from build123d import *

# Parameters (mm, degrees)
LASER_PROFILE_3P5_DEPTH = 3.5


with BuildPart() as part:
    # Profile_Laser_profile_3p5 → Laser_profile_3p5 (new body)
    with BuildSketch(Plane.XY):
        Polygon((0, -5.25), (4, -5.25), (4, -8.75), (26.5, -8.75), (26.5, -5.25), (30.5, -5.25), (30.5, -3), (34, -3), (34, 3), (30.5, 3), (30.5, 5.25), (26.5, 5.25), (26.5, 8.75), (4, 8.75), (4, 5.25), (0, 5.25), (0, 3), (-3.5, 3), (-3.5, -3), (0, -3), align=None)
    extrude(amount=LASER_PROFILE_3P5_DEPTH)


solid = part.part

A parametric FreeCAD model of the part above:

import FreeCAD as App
import Part
import Sketcher

doc = App.newDocument("Part")
body = doc.addObject("PartDesign::Body", "Body")

# Sketch on XY plane
sketch1 = doc.addObject("Sketcher::SketchObject", "Sketch")
body.addObject(sketch1)
sketch1.AttachmentSupport = (doc.XY_Plane, [""])
sketch1.MapMode = "FlatFace"
sketch1.addGeometry(Part.LineSegment(App.Vector(0, -5.25, 0), App.Vector(4, -5.25, 0)), False)
sketch1.addGeometry(Part.LineSegment(App.Vector(4, -5.25, 0), App.Vector(4, -8.75, 0)), False)
sketch1.addGeometry(Part.LineSegment(App.Vector(4, -8.75, 0), App.Vector(26.5, -8.75, 0)), False)
sketch1.addGeometry(Part.LineSegment(App.Vector(26.5, -8.75, 0), App.Vector(26.5, -5.25, 0)), False)
sketch1.addGeometry(Part.LineSegment(App.Vector(26.5, -5.25, 0), App.Vector(30.5, -5.25, 0)), False)
sketch1.addGeometry(Part.LineSegment(App.Vector(30.5, -5.25, 0), App.Vector(30.5, -3, 0)), False)
sketch1.addGeometry(Part.LineSegment(App.Vector(30.5, -3, 0), App.Vector(34, -3, 0)), False)
sketch1.addGeometry(Part.LineSegment(App.Vector(34, -3, 0), App.Vector(34, 3, 0)), False)
sketch1.addGeometry(Part.LineSegment(App.Vector(34, 3, 0), App.Vector(30.5, 3, 0)), False)
sketch1.addGeometry(Part.LineSegment(App.Vector(30.5, 3, 0), App.Vector(30.5, 5.25, 0)), False)
sketch1.addGeometry(Part.LineSegment(App.Vector(30.5, 5.25, 0), App.Vector(26.5, 5.25, 0)), False)
sketch1.addGeometry(Part.LineSegment(App.Vector(26.5, 5.25, 0), App.Vector(26.5, 8.75, 0)), False)
sketch1.addGeometry(Part.LineSegment(App.Vector(26.5, 8.75, 0), App.Vector(4, 8.75, 0)), False)
sketch1.addGeometry(Part.LineSegment(App.Vector(4, 8.75, 0), App.Vector(4, 5.25, 0)), False)
sketch1.addGeometry(Part.LineSegment(App.Vector(4, 5.25, 0), App.Vector(0, 5.25, 0)), False)
sketch1.addGeometry(Part.LineSegment(App.Vector(0, 5.25, 0), App.Vector(0, 3, 0)), False)
sketch1.addGeometry(Part.LineSegment(App.Vector(0, 3, 0), App.Vector(-3.5, 3, 0)), False)
sketch1.addGeometry(Part.LineSegment(App.Vector(-3.5, 3, 0), App.Vector(-3.5, -3, 0)), False)
sketch1.addGeometry(Part.LineSegment(App.Vector(-3.5, -3, 0), App.Vector(0, -3, 0)), False)
sketch1.addGeometry(Part.LineSegment(App.Vector(0, -3, 0), App.Vector(0, -5.25, 0)), False)
sketch1.addConstraint(Sketcher.Constraint("Coincident", 0, 2, 1, 1))
sketch1.addConstraint(Sketcher.Constraint("Coincident", 1, 2, 2, 1))
sketch1.addConstraint(Sketcher.Constraint("Coincident", 2, 2, 3, 1))
sketch1.addConstraint(Sketcher.Constraint("Coincident", 3, 2, 4, 1))
sketch1.addConstraint(Sketcher.Constraint("Coincident", 4, 2, 5, 1))
sketch1.addConstraint(Sketcher.Constraint("Coincident", 5, 2, 6, 1))
sketch1.addConstraint(Sketcher.Constraint("Coincident", 6, 2, 7, 1))
sketch1.addConstraint(Sketcher.Constraint("Coincident", 7, 2, 8, 1))
sketch1.addConstraint(Sketcher.Constraint("Coincident", 8, 2, 9, 1))
sketch1.addConstraint(Sketcher.Constraint("Coincident", 9, 2, 10, 1))
sketch1.addConstraint(Sketcher.Constraint("Coincident", 10, 2, 11, 1))
sketch1.addConstraint(Sketcher.Constraint("Coincident", 11, 2, 12, 1))
sketch1.addConstraint(Sketcher.Constraint("Coincident", 12, 2, 13, 1))
sketch1.addConstraint(Sketcher.Constraint("Coincident", 13, 2, 14, 1))
sketch1.addConstraint(Sketcher.Constraint("Coincident", 14, 2, 15, 1))
sketch1.addConstraint(Sketcher.Constraint("Coincident", 15, 2, 16, 1))
sketch1.addConstraint(Sketcher.Constraint("Coincident", 16, 2, 17, 1))
sketch1.addConstraint(Sketcher.Constraint("Coincident", 17, 2, 18, 1))
sketch1.addConstraint(Sketcher.Constraint("Coincident", 18, 2, 19, 1))
sketch1.addConstraint(Sketcher.Constraint("Coincident", 19, 2, 0, 1))
sketch1.addConstraint(Sketcher.Constraint("Horizontal", 0))
sketch1.addConstraint(Sketcher.Constraint("Vertical", 1))
sketch1.addConstraint(Sketcher.Constraint("Horizontal", 2))
sketch1.addConstraint(Sketcher.Constraint("Vertical", 3))
sketch1.addConstraint(Sketcher.Constraint("Horizontal", 4))
sketch1.addConstraint(Sketcher.Constraint("Vertical", 5))
sketch1.addConstraint(Sketcher.Constraint("Horizontal", 6))
sketch1.addConstraint(Sketcher.Constraint("Vertical", 7))
sketch1.addConstraint(Sketcher.Constraint("Horizontal", 8))
sketch1.addConstraint(Sketcher.Constraint("Vertical", 9))
sketch1.addConstraint(Sketcher.Constraint("Horizontal", 10))
sketch1.addConstraint(Sketcher.Constraint("Vertical", 11))
sketch1.addConstraint(Sketcher.Constraint("Horizontal", 12))
sketch1.addConstraint(Sketcher.Constraint("Vertical", 13))
sketch1.addConstraint(Sketcher.Constraint("Horizontal", 14))
sketch1.addConstraint(Sketcher.Constraint("Vertical", 15))
sketch1.addConstraint(Sketcher.Constraint("Horizontal", 16))
sketch1.addConstraint(Sketcher.Constraint("Vertical", 17))
sketch1.addConstraint(Sketcher.Constraint("Horizontal", 18))
sketch1.addConstraint(Sketcher.Constraint("Vertical", 19))
sketch1.addConstraint(Sketcher.Constraint("Symmetric", 15, 2, 18, 2, -1, 1))
sketch1.addConstraint(Sketcher.Constraint("Symmetric", 5, 2, 8, 2, -1))
sketch1.addConstraint(Sketcher.Constraint("Symmetric", 3, 2, 10, 2, -1))
sketch1.addConstraint(Sketcher.Constraint("Symmetric", 1, 2, 12, 2, -1))
sketch1.addConstraint(Sketcher.Constraint("Symmetric", 14, 2, 19, 2, -1))
sketch1.addConstraint(Sketcher.Constraint("Horizontal", 0, 2, 3, 2))
sketch1.addConstraint(Sketcher.Constraint("Horizontal", 8, 2, 15, 2))
sketch1.addConstraint(Sketcher.Constraint("Equal", 0, 4))
sketch1.addConstraint(Sketcher.Constraint("Equal", 8, 16))
sketch1.addConstraint(Sketcher.Constraint("Equal", 18, 1))
sketch1.addConstraint(Sketcher.Constraint("DistanceX", 0, 1, 0, 2, 4.0))
sketch1.addConstraint(Sketcher.Constraint("DistanceY", 7, 1, 7, 2, 6.0))
sketch1.addConstraint(Sketcher.Constraint("DistanceX", 2, 1, 2, 2, 22.5))
sketch1.addConstraint(Sketcher.Constraint("DistanceX", 6, 1, 6, 2, 3.5))
sketch1.addConstraint(Sketcher.Constraint("DistanceY", 0, 2, 12, 2, 14.0))
pad1 = doc.addObject("PartDesign::Pad", "Pad")
body.addObject(pad1)
pad1.Profile = sketch1
pad1.Length = 3.5

doc.recompute()
